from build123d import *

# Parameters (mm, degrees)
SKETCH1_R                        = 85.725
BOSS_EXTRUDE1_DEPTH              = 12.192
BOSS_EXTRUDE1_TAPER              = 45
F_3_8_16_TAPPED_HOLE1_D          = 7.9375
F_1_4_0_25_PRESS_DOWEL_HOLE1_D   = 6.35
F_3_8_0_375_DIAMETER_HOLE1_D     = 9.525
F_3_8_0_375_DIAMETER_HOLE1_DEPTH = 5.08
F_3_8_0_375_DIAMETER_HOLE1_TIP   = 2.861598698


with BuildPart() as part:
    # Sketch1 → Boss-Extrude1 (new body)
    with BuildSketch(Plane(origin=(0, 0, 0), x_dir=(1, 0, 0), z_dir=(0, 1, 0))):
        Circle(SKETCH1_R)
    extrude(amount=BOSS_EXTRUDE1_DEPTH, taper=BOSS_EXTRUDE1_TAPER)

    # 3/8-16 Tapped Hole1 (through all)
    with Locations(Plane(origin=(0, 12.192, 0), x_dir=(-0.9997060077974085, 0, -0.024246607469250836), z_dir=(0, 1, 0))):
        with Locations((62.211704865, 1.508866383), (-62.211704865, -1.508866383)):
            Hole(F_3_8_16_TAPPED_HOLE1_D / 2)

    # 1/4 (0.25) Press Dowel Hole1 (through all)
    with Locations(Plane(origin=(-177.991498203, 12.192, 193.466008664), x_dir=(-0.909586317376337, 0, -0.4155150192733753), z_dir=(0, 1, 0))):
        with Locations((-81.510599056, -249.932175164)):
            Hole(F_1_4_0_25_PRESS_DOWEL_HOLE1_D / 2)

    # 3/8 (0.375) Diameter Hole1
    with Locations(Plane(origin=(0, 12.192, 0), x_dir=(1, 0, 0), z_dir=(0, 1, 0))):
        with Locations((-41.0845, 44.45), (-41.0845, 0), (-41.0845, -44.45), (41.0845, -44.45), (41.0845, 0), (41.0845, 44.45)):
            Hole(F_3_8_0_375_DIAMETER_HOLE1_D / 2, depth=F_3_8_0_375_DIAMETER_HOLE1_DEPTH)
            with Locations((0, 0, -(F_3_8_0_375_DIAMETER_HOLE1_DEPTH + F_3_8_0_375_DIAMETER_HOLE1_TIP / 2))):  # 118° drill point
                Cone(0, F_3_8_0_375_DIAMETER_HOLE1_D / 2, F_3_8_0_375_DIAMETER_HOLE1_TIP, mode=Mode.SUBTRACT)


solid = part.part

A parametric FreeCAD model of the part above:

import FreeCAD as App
import Part
import Sketcher
Q = App.Units.Quantity

doc = App.newDocument("Part")
body = doc.addObject("PartDesign::Body", "Body")

# Sketch on XZ plane
sketch1 = body.newObject("Sketcher::SketchObject", "Sketch")
sketch1.AttachmentSupport = (doc.getObject("XZ_Plane"), [""])
sketch1.MapMode = "FlatFace"
sketch1.addGeometry(Part.Circle(App.Vector(0, 0, 0), App.Vector(0, 0, 1), 86), False)
sketch1.addConstraint([
    Sketcher.Constraint("Coincident", 0, 3, -1, 1),
    Sketcher.Constraint("Diameter", 0, Q("6.75 in")),
])
pad1 = body.newObject("PartDesign::Pad", "Pad")
pad1.Profile = sketch1
pad1.Length = Q("0.48 in")
pad1.Reversed = True
pad1.TaperAngle = -45

# Sketch on XZ plane
sketch2 = body.newObject("Sketcher::SketchObject", "Sketch001")
sketch2.AttachmentSupport = (doc.getObject("XZ_Plane"), [""])
sketch2.MapMode = "FlatFace"
sketch2.AttachmentOffset = App.Placement(App.Vector(0, 0, -0.48 * 25.4), App.Rotation())
sketch2.addGeometry([
    Part.Circle(App.Vector(-62.2, 0, 0), App.Vector(0, 0, 1), 4),
    Part.Circle(App.Vector(62.2, 0, 0), App.Vector(0, 0, 1), 4),
], False)
sketch2.addConstraint([
    Sketcher.Constraint("Equal", 0, 1),
    Sketcher.Constraint("Symmetric", 0, 3, 1, 3, -1, 1),
    Sketcher.Constraint("PointOnObject", 0, 3, -1),
    Sketcher.Constraint("Diameter", 0, Q("0.3125 in")),
    Sketcher.Constraint("DistanceX", 0, 3, 1, 3, Q("4.9 in")),
])
doc.recompute()
hole = body.newObject("PartDesign::Hole", "Hole")
hole.Profile = sketch2
hole.ThreadType = "None"
hole.Diameter = Q("0.3125 in")
hole.DepthType = "ThroughAll"
hole.Reversed = True

# Sketch on XZ plane
sketch3 = body.newObject("Sketcher::SketchObject", "Sketch002")
sketch3.AttachmentSupport = (doc.getObject("XZ_Plane"), [""])
sketch3.MapMode = "FlatFace"
sketch3.AttachmentOffset = App.Placement(App.Vector(0, 0, -0.48 * 25.4), App.Rotation())
sketch3.addGeometry(Part.Circle(App.Vector(0, 0, 0), App.Vector(0, 0, 1), 3.2), False)
sketch3.addConstraint([
    Sketcher.Constraint("Coincident", 0, 3, -1, 1),
    Sketcher.Constraint("Diameter", 0, Q("0.25 in")),
])
doc.recompute()
hole2 = body.newObject("PartDesign::Hole", "Hole001")
hole2.Profile = sketch3
hole2.ThreadType = "None"
hole2.Diameter = Q("0.25 in")
hole2.DepthType = "ThroughAll"
hole2.Reversed = True

# Sketch on XZ plane
sketch4 = body.newObject("Sketcher::SketchObject", "Sketch003")
sketch4.AttachmentSupport = (doc.getObject("XZ_Plane"), [""])
sketch4.MapMode = "FlatFace"
sketch4.AttachmentOffset = App.Placement(App.Vector(0, 0, -0.48 * 25.4), App.Rotation())
sketch4.addGeometry([
    Part.Circle(App.Vector(-41.1, -44.5, 0), App.Vector(0, 0, 1), 4.8),  # 0
    Part.Circle(App.Vector(-41.1, 0, 0), App.Vector(0, 0, 1), 4.8),  # 1
    Part.Circle(App.Vector(-41.1, 44.5, 0), App.Vector(0, 0, 1), 4.8),  # 2
    Part.Circle(App.Vector(41.1, 44.5, 0), App.Vector(0, 0, 1), 4.8),  # 3
    Part.Circle(App.Vector(41.1, 0, 0), App.Vector(0, 0, 1), 4.8),  # 4
    Part.Circle(App.Vector(41.1, -44.5, 0), App.Vector(0, 0, 1), 4.8),  # 5
], False)
sketch4.addConstraint([
    Sketcher.Constraint("Equal", 0, 1),
    Sketcher.Constraint("Equal", 1, 2),
    Sketcher.Constraint("Equal", 2, 3),
    Sketcher.Constraint("Equal", 3, 4),
    Sketcher.Constraint("Equal", 4, 5),
    Sketcher.Constraint("Symmetric", 0, 3, 3, 3, -1, 1),
    Sketcher.Constraint("Symmetric", 1, 3, 4, 3, -1, 1),
    Sketcher.Constraint("Symmetric", 2, 3, 5, 3, -1, 1),
    Sketcher.Constraint("Symmetric", 2, 3, 3, 3, -2),
    Sketcher.Constraint("PointOnObject", 1, 3, -1),
    Sketcher.Constraint("Vertical", 0, 3, 1, 3),
    Sketcher.Constraint("Diameter", 0, Q("0.375 in")),
    Sketcher.Constraint("DistanceY", 0, 3, 2, 3, Q("3.5 in")),
    Sketcher.Constraint("DistanceX", 2, 3, 3, 3, Q("3.235 in")),
])
doc.recompute()
hole3 = body.newObject("PartDesign::Hole", "Hole002")
hole3.Profile = sketch4
hole3.ThreadType = "None"
hole3.Diameter = Q("0.375 in")
hole3.DepthType = "Dimension"
hole3.Depth = Q("0.2 in")
hole3.DrillPoint = "Angled"
hole3.DrillPointAngle = 118
hole3.Reversed = True

doc.recompute()
